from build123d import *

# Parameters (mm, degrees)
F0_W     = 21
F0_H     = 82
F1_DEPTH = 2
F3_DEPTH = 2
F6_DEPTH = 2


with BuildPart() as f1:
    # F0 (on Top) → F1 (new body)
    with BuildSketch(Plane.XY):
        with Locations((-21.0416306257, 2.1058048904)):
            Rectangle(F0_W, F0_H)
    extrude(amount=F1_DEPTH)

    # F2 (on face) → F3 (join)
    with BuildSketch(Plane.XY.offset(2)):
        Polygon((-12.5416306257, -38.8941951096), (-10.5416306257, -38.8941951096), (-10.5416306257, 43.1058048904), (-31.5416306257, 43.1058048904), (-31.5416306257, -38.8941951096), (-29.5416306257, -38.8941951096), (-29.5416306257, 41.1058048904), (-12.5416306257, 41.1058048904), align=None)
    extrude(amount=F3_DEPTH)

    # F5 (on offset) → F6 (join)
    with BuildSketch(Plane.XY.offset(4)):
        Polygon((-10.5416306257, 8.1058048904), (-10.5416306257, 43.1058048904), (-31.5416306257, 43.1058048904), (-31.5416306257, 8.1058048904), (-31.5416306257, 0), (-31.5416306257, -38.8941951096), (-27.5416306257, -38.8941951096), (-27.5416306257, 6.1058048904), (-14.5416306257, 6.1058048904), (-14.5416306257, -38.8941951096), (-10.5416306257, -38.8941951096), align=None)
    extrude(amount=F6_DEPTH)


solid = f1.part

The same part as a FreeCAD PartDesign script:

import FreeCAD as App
import Part
import Sketcher

V = App.Vector
Q = App.Units.Quantity


def add_polygon(sketch, points):
    """Adds a closed chain of lines whose ends are joined by coincident constraints."""
    first, n = sketch.GeometryCount, len(points)
    for a, b in zip(points, points[1:] + points[:1]):
        sketch.addGeometry(Part.LineSegment(App.Vector(*a, 0), App.Vector(*b, 0)), False)
    for i in range(n):
        sketch.addConstraint(Sketcher.Constraint("Coincident", first + i, 2, first + (i + 1) % n, 1))

doc = App.newDocument("Part")
body = doc.addObject("PartDesign::Body", "Body")

sketch1 = body.newObject("Sketcher::SketchObject", "Sketch")
sketch1.AttachmentSupport = (doc.getObject("XY_Plane"), [""])
sketch1.MapMode = "FlatFace"
add_polygon(sketch1, [(-32, 43), (-32, -39), (-11, -39), (-11, 43)])
sketch1.addConstraint(Sketcher.Constraint("Vertical", 0))
sketch1.addConstraint(Sketcher.Constraint("Horizontal", 1))
sketch1.addConstraint(Sketcher.Constraint("Vertical", 2))
sketch1.addConstraint(Sketcher.Constraint("Horizontal", 3))
sketch1.addConstraint(Sketcher.Constraint("DistanceX", 1, 1, 1, 2, Q("21 mm")))
sketch1.addConstraint(Sketcher.Constraint("DistanceY", 0, 2, 0, 1, Q("82 mm")))
sketch1.addConstraint(Sketcher.Constraint("DistanceX", 0, 2, -1, 1, Q("31.541631 mm")))
sketch1.addConstraint(Sketcher.Constraint("DistanceY", 0, 2, -1, 1, Q("38.894195 mm")))
pad1 = body.newObject("PartDesign::Pad", "Pad")
pad1.Profile = sketch1
pad1.Length = 2

sketch2 = body.newObject("Sketcher::SketchObject", "Sketch001")
sketch2.AttachmentSupport = (doc.getObject("XY_Plane"), [""])
sketch2.MapMode = "FlatFace"
sketch2.AttachmentOffset = App.Placement(V(0, 0, 2), App.Rotation())
add_polygon(sketch2, [(-12.5, -38.9), (-10.5, -38.9), (-10.5, 43.1), (-31.5, 43.1), (-31.5, -38.9), (-29.5, -38.9), (-29.5, 41.1), (-12.5, 41.1)])
sketch2.addConstraint(Sketcher.Constraint("Horizontal", 0))
sketch2.addConstraint(Sketcher.Constraint("Vertical", 1))
sketch2.addConstraint(Sketcher.Constraint("Horizontal", 2))
sketch2.addConstraint(Sketcher.Constraint("Vertical", 3))
sketch2.addConstraint(Sketcher.Constraint("Horizontal", 4))
sketch2.addConstraint(Sketcher.Constraint("Vertical", 5))
sketch2.addConstraint(Sketcher.Constraint("Horizontal", 6))
sketch2.addConstraint(Sketcher.Constraint("Vertical", 7))
sketch2.addConstraint(Sketcher.Constraint("Horizontal", 0, 2, 3, 2))
sketch2.addConstraint(Sketcher.Constraint("Equal", 0, 4))
sketch2.addConstraint(Sketcher.Constraint("DistanceX", 0, 1, 0, 2, Q("2 mm")))
sketch2.addConstraint(Sketcher.Constraint("DistanceX", 2, 2, 2, 1, Q("21 mm")))
sketch2.addConstraint(Sketcher.Constraint("DistanceY", 1, 1, 1, 2, Q("82 mm")))
sketch2.addConstraint(Sketcher.Constraint("DistanceY", 5, 1, 5, 2, Q("80 mm")))
sketch2.addConstraint(Sketcher.Constraint("DistanceX", 0, 2, -1, 1, Q("10.541631 mm")))
sketch2.addConstraint(Sketcher.Constraint("DistanceY", 0, 2, -1, 1, Q("38.894195 mm")))
pad2 = body.newObject("PartDesign::Pad", "Pad001")
pad2.Profile = sketch2
pad2.Length = 2

sketch3 = body.newObject("Sketcher::SketchObject", "Sketch002")
sketch3.AttachmentSupport = (doc.getObject("XY_Plane"), [""])
sketch3.MapMode = "FlatFace"
sketch3.AttachmentOffset = App.Placement(V(0, 0, 4), App.Rotation())
add_polygon(sketch3, [(-10.5, 43.1), (-31.5, 43.1), (-31.5, -38.9), (-27.5, -38.9), (-27.5, 6.1), (-14.5, 6.1), (-14.5, -38.9), (-10.5, -38.9)])
sketch3.addConstraint(Sketcher.Constraint("Horizontal", 0))
sketch3.addConstraint(Sketcher.Constraint("Vertical", 1))
sketch3.addConstraint(Sketcher.Constraint("Horizontal", 2))
sketch3.addConstraint(Sketcher.Constraint("Vertical", 3))
sketch3.addConstraint(Sketcher.Constraint("Horizontal", 4))
sketch3.addConstraint(Sketcher.Constraint("Vertical", 5))
sketch3.addConstraint(Sketcher.Constraint("Horizontal", 6))
sketch3.addConstraint(Sketcher.Constraint("Vertical", 7))
sketch3.addConstraint(Sketcher.Constraint("Horizontal", 2, 2, 5, 2))
sketch3.addConstraint(Sketcher.Constraint("Equal", 2, 6))
sketch3.addConstraint(Sketcher.Constraint("DistanceX", 0, 2, 0, 1, Q("21 mm")))
sketch3.addConstraint(Sketcher.Constraint("DistanceX", 2, 1, 2, 2, Q("4 mm")))
sketch3.addConstraint(Sketcher.Constraint("DistanceY", 1, 2, 1, 1, Q("82 mm")))
sketch3.addConstraint(Sketcher.Constraint("DistanceY", 3, 1, 3, 2, Q("45 mm")))
sketch3.addConstraint(Sketcher.Constraint("DistanceX", 0, 2, -1, 1, Q("31.541631 mm")))
sketch3.addConstraint(Sketcher.Constraint("DistanceY", -1, 1, 0, 2, Q("43.105805 mm")))
pad3 = body.newObject("PartDesign::Pad", "Pad002")
pad3.Profile = sketch3
pad3.Length = 2

doc.recompute()
